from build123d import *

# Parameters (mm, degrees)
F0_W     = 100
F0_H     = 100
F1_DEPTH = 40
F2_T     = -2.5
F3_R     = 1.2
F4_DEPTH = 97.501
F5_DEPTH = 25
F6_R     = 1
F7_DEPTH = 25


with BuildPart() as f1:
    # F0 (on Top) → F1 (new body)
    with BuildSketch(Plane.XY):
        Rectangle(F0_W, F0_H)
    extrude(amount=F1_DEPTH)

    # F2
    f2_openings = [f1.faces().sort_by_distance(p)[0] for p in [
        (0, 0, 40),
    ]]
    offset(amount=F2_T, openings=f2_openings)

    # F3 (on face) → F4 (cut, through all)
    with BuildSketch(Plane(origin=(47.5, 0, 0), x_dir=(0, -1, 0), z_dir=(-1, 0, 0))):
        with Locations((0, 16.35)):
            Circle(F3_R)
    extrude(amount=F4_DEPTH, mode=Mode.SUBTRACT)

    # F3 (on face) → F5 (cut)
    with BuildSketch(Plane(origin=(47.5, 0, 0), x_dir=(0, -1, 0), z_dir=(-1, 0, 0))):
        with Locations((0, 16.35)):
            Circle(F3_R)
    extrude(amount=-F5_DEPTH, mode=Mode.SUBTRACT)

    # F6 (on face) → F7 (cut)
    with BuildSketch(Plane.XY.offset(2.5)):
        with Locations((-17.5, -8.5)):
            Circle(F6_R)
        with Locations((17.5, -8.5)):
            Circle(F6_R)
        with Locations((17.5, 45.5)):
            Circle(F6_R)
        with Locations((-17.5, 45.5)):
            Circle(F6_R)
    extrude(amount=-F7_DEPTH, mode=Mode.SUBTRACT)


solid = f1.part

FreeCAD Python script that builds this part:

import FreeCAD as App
import Part
import Sketcher
Q = App.Units.Quantity


def faces_at(feature, points):
    """Names of the faces that lie closest to the given points."""
    faces = feature.Shape.Faces
    near = lambda p: min(range(len(faces)), key=lambda i: faces[i].distToShape(Part.Vertex(*p))[0])
    return sorted({f"Face{near(p) + 1}" for p in points})

doc = App.newDocument("Part")
body = doc.addObject("PartDesign::Body", "Body")

# Sketch on XY plane
sketch1 = body.newObject("Sketcher::SketchObject", "Sketch")
sketch1.AttachmentSupport = (doc.getObject("XY_Plane"), [""])
sketch1.MapMode = "FlatFace"
sketch1.addGeometry([
    Part.LineSegment(App.Vector(-50, 50, 0), App.Vector(-50, -50, 0)),
    Part.LineSegment(App.Vector(-50, -50, 0), App.Vector(50, -50, 0)),
    Part.LineSegment(App.Vector(50, -50, 0), App.Vector(50, 50, 0)),
    Part.LineSegment(App.Vector(50, 50, 0), App.Vector(-50, 50, 0)),
], False)
sketch1.addConstraint([
    Sketcher.Constraint("Coincident", 0, 2, 1, 1),
    Sketcher.Constraint("Coincident", 1, 2, 2, 1),
    Sketcher.Constraint("Coincident", 2, 2, 3, 1),
    Sketcher.Constraint("Coincident", 3, 2, 0, 1),
    Sketcher.Constraint("Vertical", 0),
    Sketcher.Constraint("Horizontal", 1),
    Sketcher.Constraint("Vertical", 2),
    Sketcher.Constraint("Horizontal", 3),
    Sketcher.Constraint("Symmetric", 0, 2, 2, 2, -1, 1),
    Sketcher.Constraint("Equal", 3, 0),
    Sketcher.Constraint("DistanceX", 1, 1, 1, 2, Q("100 mm")),
])
pad1 = body.newObject("PartDesign::Pad", "Pad")
pad1.Profile = sketch1
pad1.Length = 40
doc.recompute()

thickness = body.newObject("PartDesign::Thickness", "Thickness")
thickness.Base = (pad1, faces_at(pad1, [(0, 0, 40)]))
thickness.Value = 2.5
thickness.Reversed = True
thickness.Join = "Arc"

# Sketch on YZ plane
sketch2 = body.newObject("Sketcher::SketchObject", "Sketch001")
sketch2.AttachmentSupport = (doc.getObject("YZ_Plane"), [""])
sketch2.MapMode = "FlatFace"
sketch2.AttachmentOffset = App.Placement(App.Vector(0, 0, 47.5), App.Rotation())
sketch2.addGeometry(Part.Circle(App.Vector(0, 16.4, 0), App.Vector(0, 0, 1), 1.2), False)
sketch2.addConstraint([
    Sketcher.Constraint("PointOnObject", 0, 3, -2),
    Sketcher.Constraint("Diameter", 0, Q("2.4 mm")),
    Sketcher.Constraint("DistanceY", -1, 1, 0, 3, Q("16.35 mm")),
])
pocket1 = body.newObject("PartDesign::Pocket", "Pocket")
pocket1.Profile = sketch2
pocket1.Type = "ThroughAll"

# Sketch on YZ plane
sketch3 = body.newObject("Sketcher::SketchObject", "Sketch002")
sketch3.AttachmentSupport = (doc.getObject("YZ_Plane"), [""])
sketch3.MapMode = "FlatFace"
sketch3.AttachmentOffset = App.Placement(App.Vector(0, 0, 47.5), App.Rotation())
sketch3.addGeometry(Part.Circle(App.Vector(0, 16.4, 0), App.Vector(0, 0, 1), 1.2), False)
sketch3.addConstraint([
    Sketcher.Constraint("PointOnObject", 0, 3, -2),
    Sketcher.Constraint("Diameter", 0, Q("2.4 mm")),
    Sketcher.Constraint("DistanceY", -1, 1, 0, 3, Q("16.35 mm")),
])
pocket2 = body.newObject("PartDesign::Pocket", "Pocket001")
pocket2.Profile = sketch3
pocket2.Length = 25
pocket2.Reversed = True

# Sketch on XY plane
sketch4 = body.newObject("Sketcher::SketchObject", "Sketch003")
sketch4.AttachmentSupport = (doc.getObject("XY_Plane"), [""])
sketch4.MapMode = "FlatFace"
sketch4.AttachmentOffset = App.Placement(App.Vector(0, 0, 2.5), App.Rotation())
sketch4.addGeometry([
    Part.Circle(App.Vector(-17.5, -8.5, 0), App.Vector(0, 0, 1), 1),
    Part.Circle(App.Vector(17.5, -8.5, 0), App.Vector(0, 0, 1), 1),
    Part.Circle(App.Vector(17.5, 45.5, 0), App.Vector(0, 0, 1), 1),
    Part.Circle(App.Vector(-17.5, 45.5, 0), App.Vector(0, 0, 1), 1),
], False)
sketch4.addConstraint([
    Sketcher.Constraint("Equal", 0, 1),
    Sketcher.Constraint("Equal", 1, 2),
    Sketcher.Constraint("Equal", 2, 3),
    Sketcher.Constraint("Symmetric", 0, 3, 1, 3, -2),
    Sketcher.Constraint("Symmetric", 2, 3, 3, 3, -2),
    Sketcher.Constraint("Vertical", 1, 3, 2, 3),
    Sketcher.Constraint("Diameter", 0, Q("2 mm")),
    Sketcher.Constraint("DistanceX", 0, 3, 1, 3, Q("35 mm")),
    Sketcher.Constraint("DistanceY", 1, 3, 2, 3, Q("54 mm")),
    Sketcher.Constraint("DistanceY", 0, 3, -1, 1, Q("8.5 mm")),
])
pocket3 = body.newObject("PartDesign::Pocket", "Pocket002")
pocket3.Profile = sketch4
pocket3.Length = 25

doc.recompute()
